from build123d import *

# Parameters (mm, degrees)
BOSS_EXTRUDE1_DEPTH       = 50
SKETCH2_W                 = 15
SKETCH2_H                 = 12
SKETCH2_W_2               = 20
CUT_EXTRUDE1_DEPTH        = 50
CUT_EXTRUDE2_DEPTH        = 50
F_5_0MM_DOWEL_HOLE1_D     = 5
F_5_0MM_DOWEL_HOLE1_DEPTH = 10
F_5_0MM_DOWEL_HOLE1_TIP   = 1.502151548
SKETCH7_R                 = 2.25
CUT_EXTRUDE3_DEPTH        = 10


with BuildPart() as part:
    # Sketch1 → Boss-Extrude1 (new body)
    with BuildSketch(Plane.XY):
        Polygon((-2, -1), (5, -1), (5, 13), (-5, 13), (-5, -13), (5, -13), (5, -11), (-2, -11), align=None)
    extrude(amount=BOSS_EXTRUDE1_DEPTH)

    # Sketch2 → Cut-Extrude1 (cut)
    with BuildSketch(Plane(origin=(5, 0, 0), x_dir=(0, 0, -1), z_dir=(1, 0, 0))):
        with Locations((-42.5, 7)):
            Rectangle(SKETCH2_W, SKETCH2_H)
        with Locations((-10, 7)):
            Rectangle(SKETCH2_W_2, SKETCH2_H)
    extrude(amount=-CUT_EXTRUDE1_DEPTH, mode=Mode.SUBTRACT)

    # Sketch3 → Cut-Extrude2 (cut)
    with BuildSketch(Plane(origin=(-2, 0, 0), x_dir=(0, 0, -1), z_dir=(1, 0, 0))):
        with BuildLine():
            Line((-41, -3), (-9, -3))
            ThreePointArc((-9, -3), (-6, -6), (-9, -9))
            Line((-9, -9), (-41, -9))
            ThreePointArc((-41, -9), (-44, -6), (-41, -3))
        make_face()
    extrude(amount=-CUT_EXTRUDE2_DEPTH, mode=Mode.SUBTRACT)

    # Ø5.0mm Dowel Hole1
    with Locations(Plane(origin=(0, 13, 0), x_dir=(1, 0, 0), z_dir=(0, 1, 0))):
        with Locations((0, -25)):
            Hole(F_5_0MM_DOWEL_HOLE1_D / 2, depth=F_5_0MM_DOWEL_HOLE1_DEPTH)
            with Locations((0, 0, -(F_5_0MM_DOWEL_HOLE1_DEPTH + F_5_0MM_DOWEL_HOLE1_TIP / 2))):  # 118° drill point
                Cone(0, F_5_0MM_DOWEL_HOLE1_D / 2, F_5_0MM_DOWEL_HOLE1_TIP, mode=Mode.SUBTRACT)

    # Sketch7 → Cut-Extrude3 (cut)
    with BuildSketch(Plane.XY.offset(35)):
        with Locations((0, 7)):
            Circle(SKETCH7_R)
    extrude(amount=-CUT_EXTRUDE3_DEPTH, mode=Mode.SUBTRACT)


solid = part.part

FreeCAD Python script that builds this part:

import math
import FreeCAD as App
import Part
import Sketcher
from FreeCAD import Vector
Q = App.Units.Quantity

doc = App.newDocument("Part")
body = doc.addObject("PartDesign::Body", "Body")

# Sketch on XY plane
sketch1 = body.newObject("Sketcher::SketchObject", "Sketch")
sketch1.AttachmentSupport = (doc.getObject("XY_Plane"), [""])
sketch1.MapMode = "FlatFace"
sketch1.addGeometry(Part.LineSegment(Vector(-2, -1, 0), Vector(5, -1, 0)), False)
sketch1.addGeometry(Part.LineSegment(Vector(5, -1, 0), Vector(5, 13, 0)), False)
sketch1.addGeometry(Part.LineSegment(Vector(5, 13, 0), Vector(-5, 13, 0)), False)
sketch1.addGeometry(Part.LineSegment(Vector(-5, 13, 0), Vector(-5, -13, 0)), False)
sketch1.addGeometry(Part.LineSegment(Vector(-5, -13, 0), Vector(5, -13, 0)), False)
sketch1.addGeometry(Part.LineSegment(Vector(5, -13, 0), Vector(5, -11, 0)), False)
sketch1.addGeometry(Part.LineSegment(Vector(5, -11, 0), Vector(-2, -11, 0)), False)
sketch1.addGeometry(Part.LineSegment(Vector(-2, -11, 0), Vector(-2, -1, 0)), False)
sketch1.addConstraint(Sketcher.Constraint("Coincident", 0, 2, 1, 1))
sketch1.addConstraint(Sketcher.Constraint("Coincident", 1, 2, 2, 1))
sketch1.addConstraint(Sketcher.Constraint("Coincident", 2, 2, 3, 1))
sketch1.addConstraint(Sketcher.Constraint("Coincident", 3, 2, 4, 1))
sketch1.addConstraint(Sketcher.Constraint("Coincident", 4, 2, 5, 1))
sketch1.addConstraint(Sketcher.Constraint("Coincident", 5, 2, 6, 1))
sketch1.addConstraint(Sketcher.Constraint("Coincident", 6, 2, 7, 1))
sketch1.addConstraint(Sketcher.Constraint("Coincident", 7, 2, 0, 1))
sketch1.addConstraint(Sketcher.Constraint("Horizontal", 0))
sketch1.addConstraint(Sketcher.Constraint("Vertical", 1))
sketch1.addConstraint(Sketcher.Constraint("Horizontal", 2))
sketch1.addConstraint(Sketcher.Constraint("Vertical", 3))
sketch1.addConstraint(Sketcher.Constraint("Horizontal", 4))
sketch1.addConstraint(Sketcher.Constraint("Vertical", 5))
sketch1.addConstraint(Sketcher.Constraint("Horizontal", 6))
sketch1.addConstraint(Sketcher.Constraint("Vertical", 7))
sketch1.addConstraint(Sketcher.Constraint("Symmetric", 1, 2, 3, 2, -1, 1))
sketch1.addConstraint(Sketcher.Constraint("Vertical", 1, 2, 4, 2))
sketch1.addConstraint(Sketcher.Constraint("Equal", 4, 7))
sketch1.addConstraint(Sketcher.Constraint("DistanceX", 0, 1, 0, 2, Q("7 mm")))
sketch1.addConstraint(Sketcher.Constraint("DistanceX", 2, 2, 2, 1, Q("10 mm")))
sketch1.addConstraint(Sketcher.Constraint("DistanceY", 1, 1, 1, 2, Q("14 mm")))
sketch1.addConstraint(Sketcher.Constraint("DistanceY", 3, 2, 3, 1, Q("26 mm")))
pad1 = body.newObject("PartDesign::Pad", "Pad")
pad1.Profile = sketch1
pad1.Length = 50

# Sketch on YZ plane
sketch2 = body.newObject("Sketcher::SketchObject", "Sketch001")
sketch2.AttachmentSupport = (doc.getObject("YZ_Plane"), [""])
sketch2.MapMode = "FlatFace"
sketch2.AttachmentOffset = App.Placement(Vector(0, 0, 5), App.Rotation())
sketch2.addGeometry(Part.LineSegment(Vector(13, 50, 0), Vector(1, 50, 0)), False)
sketch2.addGeometry(Part.LineSegment(Vector(1, 50, 0), Vector(1, 35, 0)), False)
sketch2.addGeometry(Part.LineSegment(Vector(1, 35, 0), Vector(13, 35, 0)), False)
sketch2.addGeometry(Part.LineSegment(Vector(13, 35, 0), Vector(13, 50, 0)), False)
sketch2.addGeometry(Part.LineSegment(Vector(13, 20, 0), Vector(1, 20, 0)), False)
sketch2.addGeometry(Part.LineSegment(Vector(1, 20, 0), Vector(1, 0, 0)), False)
sketch2.addGeometry(Part.LineSegment(Vector(1, 0, 0), Vector(13, 0, 0)), False)
sketch2.addGeometry(Part.LineSegment(Vector(13, 0, 0), Vector(13, 20, 0)), False)
sketch2.addConstraint(Sketcher.Constraint("Coincident", 0, 2, 1, 1))
sketch2.addConstraint(Sketcher.Constraint("Coincident", 1, 2, 2, 1))
sketch2.addConstraint(Sketcher.Constraint("Coincident", 2, 2, 3, 1))
sketch2.addConstraint(Sketcher.Constraint("Coincident", 3, 2, 0, 1))
sketch2.addConstraint(Sketcher.Constraint("Coincident", 4, 2, 5, 1))
sketch2.addConstraint(Sketcher.Constraint("Coincident", 5, 2, 6, 1))
sketch2.addConstraint(Sketcher.Constraint("Coincident", 6, 2, 7, 1))
sketch2.addConstraint(Sketcher.Constraint("Coincident", 7, 2, 4, 1))
sketch2.addConstraint(Sketcher.Constraint("Horizontal", 0))
sketch2.addConstraint(Sketcher.Constraint("Vertical", 1))
sketch2.addConstraint(Sketcher.Constraint("Horizontal", 2))
sketch2.addConstraint(Sketcher.Constraint("Vertical", 3))
sketch2.addConstraint(Sketcher.Constraint("Horizontal", 4))
sketch2.addConstraint(Sketcher.Constraint("Vertical", 5))
sketch2.addConstraint(Sketcher.Constraint("Horizontal", 6))
sketch2.addConstraint(Sketcher.Constraint("Vertical", 7))
sketch2.addConstraint(Sketcher.Constraint("PointOnObject", 5, 2, -1))
sketch2.addConstraint(Sketcher.Constraint("Vertical", 1, 2, 4, 2))
sketch2.addConstraint(Sketcher.Constraint("Vertical", 3, 2, 6, 2))
sketch2.addConstraint(Sketcher.Constraint("DistanceX", 0, 2, 0, 1, Q("12 mm")))
sketch2.addConstraint(Sketcher.Constraint("DistanceY", 1, 2, 1, 1, Q("15 mm")))
sketch2.addConstraint(Sketcher.Constraint("DistanceY", 5, 2, 5, 1, Q("20 mm")))
sketch2.addConstraint(Sketcher.Constraint("DistanceX", -1, 1, 0, 2, Q("1 mm")))
sketch2.addConstraint(Sketcher.Constraint("DistanceY", -1, 1, 0, 2, Q("50 mm")))
pocket1 = body.newObject("PartDesign::Pocket", "Pocket")
pocket1.Profile = sketch2
pocket1.Length = 50

# Sketch on YZ plane
sketch3 = body.newObject("Sketcher::SketchObject", "Sketch002")
sketch3.AttachmentSupport = (doc.getObject("YZ_Plane"), [""])
sketch3.MapMode = "FlatFace"
sketch3.AttachmentOffset = App.Placement(Vector(0, 0, -2), App.Rotation())
sketch3.addGeometry(Part.LineSegment(Vector(-3, 9, 0), Vector(-3, 41, 0)), False)
sketch3.addGeometry(Part.ArcOfCircle(Part.Circle(Vector(-6, 41, 0), Vector(0, 0, 1), 3), math.radians(0), math.radians(180)), False)
sketch3.addGeometry(Part.LineSegment(Vector(-9, 41, 0), Vector(-9, 9, 0)), False)
sketch3.addGeometry(Part.ArcOfCircle(Part.Circle(Vector(-6, 9, 0), Vector(0, 0, 1), 3), math.radians(180), math.radians(360)), False)
sketch3.addConstraint(Sketcher.Constraint("Tangent", 0, 2, 1, 1))
sketch3.addConstraint(Sketcher.Constraint("Tangent", 1, 2, 2, 1))
sketch3.addConstraint(Sketcher.Constraint("Tangent", 2, 2, 3, 1))
sketch3.addConstraint(Sketcher.Constraint("Tangent", 3, 2, 0, 1))
sketch3.addConstraint(Sketcher.Constraint("Vertical", 0))
sketch3.addConstraint(Sketcher.Constraint("Vertical", 2))
sketch3.addConstraint(Sketcher.Constraint("Radius", 1, Q("3 mm")))
sketch3.addConstraint(Sketcher.Constraint("DistanceY", 0, 1, 0, 2, Q("32 mm")))
sketch3.addConstraint(Sketcher.Constraint("DistanceX", 1, 3, -1, 1, Q("6 mm")))
sketch3.addConstraint(Sketcher.Constraint("DistanceY", -1, 1, 1, 3, Q("41 mm")))
pocket2 = body.newObject("PartDesign::Pocket", "Pocket001")
pocket2.Profile = sketch3
pocket2.Length = 50

# Sketch on XZ plane
sketch4 = body.newObject("Sketcher::SketchObject", "Sketch003")
sketch4.AttachmentSupport = (doc.getObject("XZ_Plane"), [""])
sketch4.MapMode = "FlatFace"
sketch4.AttachmentOffset = App.Placement(Vector(0, 0, -13), App.Rotation())
sketch4.addGeometry(Part.Circle(Vector(0, 25, 0), Vector(0, 0, 1), 2.5), False)
sketch4.addConstraint(Sketcher.Constraint("PointOnObject", 0, 3, -2))
sketch4.addConstraint(Sketcher.Constraint("Diameter", 0, Q("5 mm")))
sketch4.addConstraint(Sketcher.Constraint("DistanceY", -1, 1, 0, 3, Q("25 mm")))
doc.recompute()
hole = body.newObject("PartDesign::Hole", "Hole")
hole.Profile = sketch4
hole.ThreadType = "None"
hole.Diameter = 5
hole.DepthType = "Dimension"
hole.Depth = 10
hole.DrillPoint = "Angled"
hole.DrillPointAngle = 118
hole.Reversed = True

# Sketch on XY plane
sketch5 = body.newObject("Sketcher::SketchObject", "Sketch004")
sketch5.AttachmentSupport = (doc.getObject("XY_Plane"), [""])
sketch5.MapMode = "FlatFace"
sketch5.AttachmentOffset = App.Placement(Vector(0, 0, 35), App.Rotation())
sketch5.addGeometry(Part.Circle(Vector(0, 7, 0), Vector(0, 0, 1), 2.25), False)
sketch5.addConstraint(Sketcher.Constraint("PointOnObject", 0, 3, -2))
sketch5.addConstraint(Sketcher.Constraint("Diameter", 0, Q("4.5 mm")))
sketch5.addConstraint(Sketcher.Constraint("DistanceY", -1, 1, 0, 3, Q("7 mm")))
pocket3 = body.newObject("PartDesign::Pocket", "Pocket002")
pocket3.Profile = sketch5
pocket3.Length = 10

doc.recompute()
